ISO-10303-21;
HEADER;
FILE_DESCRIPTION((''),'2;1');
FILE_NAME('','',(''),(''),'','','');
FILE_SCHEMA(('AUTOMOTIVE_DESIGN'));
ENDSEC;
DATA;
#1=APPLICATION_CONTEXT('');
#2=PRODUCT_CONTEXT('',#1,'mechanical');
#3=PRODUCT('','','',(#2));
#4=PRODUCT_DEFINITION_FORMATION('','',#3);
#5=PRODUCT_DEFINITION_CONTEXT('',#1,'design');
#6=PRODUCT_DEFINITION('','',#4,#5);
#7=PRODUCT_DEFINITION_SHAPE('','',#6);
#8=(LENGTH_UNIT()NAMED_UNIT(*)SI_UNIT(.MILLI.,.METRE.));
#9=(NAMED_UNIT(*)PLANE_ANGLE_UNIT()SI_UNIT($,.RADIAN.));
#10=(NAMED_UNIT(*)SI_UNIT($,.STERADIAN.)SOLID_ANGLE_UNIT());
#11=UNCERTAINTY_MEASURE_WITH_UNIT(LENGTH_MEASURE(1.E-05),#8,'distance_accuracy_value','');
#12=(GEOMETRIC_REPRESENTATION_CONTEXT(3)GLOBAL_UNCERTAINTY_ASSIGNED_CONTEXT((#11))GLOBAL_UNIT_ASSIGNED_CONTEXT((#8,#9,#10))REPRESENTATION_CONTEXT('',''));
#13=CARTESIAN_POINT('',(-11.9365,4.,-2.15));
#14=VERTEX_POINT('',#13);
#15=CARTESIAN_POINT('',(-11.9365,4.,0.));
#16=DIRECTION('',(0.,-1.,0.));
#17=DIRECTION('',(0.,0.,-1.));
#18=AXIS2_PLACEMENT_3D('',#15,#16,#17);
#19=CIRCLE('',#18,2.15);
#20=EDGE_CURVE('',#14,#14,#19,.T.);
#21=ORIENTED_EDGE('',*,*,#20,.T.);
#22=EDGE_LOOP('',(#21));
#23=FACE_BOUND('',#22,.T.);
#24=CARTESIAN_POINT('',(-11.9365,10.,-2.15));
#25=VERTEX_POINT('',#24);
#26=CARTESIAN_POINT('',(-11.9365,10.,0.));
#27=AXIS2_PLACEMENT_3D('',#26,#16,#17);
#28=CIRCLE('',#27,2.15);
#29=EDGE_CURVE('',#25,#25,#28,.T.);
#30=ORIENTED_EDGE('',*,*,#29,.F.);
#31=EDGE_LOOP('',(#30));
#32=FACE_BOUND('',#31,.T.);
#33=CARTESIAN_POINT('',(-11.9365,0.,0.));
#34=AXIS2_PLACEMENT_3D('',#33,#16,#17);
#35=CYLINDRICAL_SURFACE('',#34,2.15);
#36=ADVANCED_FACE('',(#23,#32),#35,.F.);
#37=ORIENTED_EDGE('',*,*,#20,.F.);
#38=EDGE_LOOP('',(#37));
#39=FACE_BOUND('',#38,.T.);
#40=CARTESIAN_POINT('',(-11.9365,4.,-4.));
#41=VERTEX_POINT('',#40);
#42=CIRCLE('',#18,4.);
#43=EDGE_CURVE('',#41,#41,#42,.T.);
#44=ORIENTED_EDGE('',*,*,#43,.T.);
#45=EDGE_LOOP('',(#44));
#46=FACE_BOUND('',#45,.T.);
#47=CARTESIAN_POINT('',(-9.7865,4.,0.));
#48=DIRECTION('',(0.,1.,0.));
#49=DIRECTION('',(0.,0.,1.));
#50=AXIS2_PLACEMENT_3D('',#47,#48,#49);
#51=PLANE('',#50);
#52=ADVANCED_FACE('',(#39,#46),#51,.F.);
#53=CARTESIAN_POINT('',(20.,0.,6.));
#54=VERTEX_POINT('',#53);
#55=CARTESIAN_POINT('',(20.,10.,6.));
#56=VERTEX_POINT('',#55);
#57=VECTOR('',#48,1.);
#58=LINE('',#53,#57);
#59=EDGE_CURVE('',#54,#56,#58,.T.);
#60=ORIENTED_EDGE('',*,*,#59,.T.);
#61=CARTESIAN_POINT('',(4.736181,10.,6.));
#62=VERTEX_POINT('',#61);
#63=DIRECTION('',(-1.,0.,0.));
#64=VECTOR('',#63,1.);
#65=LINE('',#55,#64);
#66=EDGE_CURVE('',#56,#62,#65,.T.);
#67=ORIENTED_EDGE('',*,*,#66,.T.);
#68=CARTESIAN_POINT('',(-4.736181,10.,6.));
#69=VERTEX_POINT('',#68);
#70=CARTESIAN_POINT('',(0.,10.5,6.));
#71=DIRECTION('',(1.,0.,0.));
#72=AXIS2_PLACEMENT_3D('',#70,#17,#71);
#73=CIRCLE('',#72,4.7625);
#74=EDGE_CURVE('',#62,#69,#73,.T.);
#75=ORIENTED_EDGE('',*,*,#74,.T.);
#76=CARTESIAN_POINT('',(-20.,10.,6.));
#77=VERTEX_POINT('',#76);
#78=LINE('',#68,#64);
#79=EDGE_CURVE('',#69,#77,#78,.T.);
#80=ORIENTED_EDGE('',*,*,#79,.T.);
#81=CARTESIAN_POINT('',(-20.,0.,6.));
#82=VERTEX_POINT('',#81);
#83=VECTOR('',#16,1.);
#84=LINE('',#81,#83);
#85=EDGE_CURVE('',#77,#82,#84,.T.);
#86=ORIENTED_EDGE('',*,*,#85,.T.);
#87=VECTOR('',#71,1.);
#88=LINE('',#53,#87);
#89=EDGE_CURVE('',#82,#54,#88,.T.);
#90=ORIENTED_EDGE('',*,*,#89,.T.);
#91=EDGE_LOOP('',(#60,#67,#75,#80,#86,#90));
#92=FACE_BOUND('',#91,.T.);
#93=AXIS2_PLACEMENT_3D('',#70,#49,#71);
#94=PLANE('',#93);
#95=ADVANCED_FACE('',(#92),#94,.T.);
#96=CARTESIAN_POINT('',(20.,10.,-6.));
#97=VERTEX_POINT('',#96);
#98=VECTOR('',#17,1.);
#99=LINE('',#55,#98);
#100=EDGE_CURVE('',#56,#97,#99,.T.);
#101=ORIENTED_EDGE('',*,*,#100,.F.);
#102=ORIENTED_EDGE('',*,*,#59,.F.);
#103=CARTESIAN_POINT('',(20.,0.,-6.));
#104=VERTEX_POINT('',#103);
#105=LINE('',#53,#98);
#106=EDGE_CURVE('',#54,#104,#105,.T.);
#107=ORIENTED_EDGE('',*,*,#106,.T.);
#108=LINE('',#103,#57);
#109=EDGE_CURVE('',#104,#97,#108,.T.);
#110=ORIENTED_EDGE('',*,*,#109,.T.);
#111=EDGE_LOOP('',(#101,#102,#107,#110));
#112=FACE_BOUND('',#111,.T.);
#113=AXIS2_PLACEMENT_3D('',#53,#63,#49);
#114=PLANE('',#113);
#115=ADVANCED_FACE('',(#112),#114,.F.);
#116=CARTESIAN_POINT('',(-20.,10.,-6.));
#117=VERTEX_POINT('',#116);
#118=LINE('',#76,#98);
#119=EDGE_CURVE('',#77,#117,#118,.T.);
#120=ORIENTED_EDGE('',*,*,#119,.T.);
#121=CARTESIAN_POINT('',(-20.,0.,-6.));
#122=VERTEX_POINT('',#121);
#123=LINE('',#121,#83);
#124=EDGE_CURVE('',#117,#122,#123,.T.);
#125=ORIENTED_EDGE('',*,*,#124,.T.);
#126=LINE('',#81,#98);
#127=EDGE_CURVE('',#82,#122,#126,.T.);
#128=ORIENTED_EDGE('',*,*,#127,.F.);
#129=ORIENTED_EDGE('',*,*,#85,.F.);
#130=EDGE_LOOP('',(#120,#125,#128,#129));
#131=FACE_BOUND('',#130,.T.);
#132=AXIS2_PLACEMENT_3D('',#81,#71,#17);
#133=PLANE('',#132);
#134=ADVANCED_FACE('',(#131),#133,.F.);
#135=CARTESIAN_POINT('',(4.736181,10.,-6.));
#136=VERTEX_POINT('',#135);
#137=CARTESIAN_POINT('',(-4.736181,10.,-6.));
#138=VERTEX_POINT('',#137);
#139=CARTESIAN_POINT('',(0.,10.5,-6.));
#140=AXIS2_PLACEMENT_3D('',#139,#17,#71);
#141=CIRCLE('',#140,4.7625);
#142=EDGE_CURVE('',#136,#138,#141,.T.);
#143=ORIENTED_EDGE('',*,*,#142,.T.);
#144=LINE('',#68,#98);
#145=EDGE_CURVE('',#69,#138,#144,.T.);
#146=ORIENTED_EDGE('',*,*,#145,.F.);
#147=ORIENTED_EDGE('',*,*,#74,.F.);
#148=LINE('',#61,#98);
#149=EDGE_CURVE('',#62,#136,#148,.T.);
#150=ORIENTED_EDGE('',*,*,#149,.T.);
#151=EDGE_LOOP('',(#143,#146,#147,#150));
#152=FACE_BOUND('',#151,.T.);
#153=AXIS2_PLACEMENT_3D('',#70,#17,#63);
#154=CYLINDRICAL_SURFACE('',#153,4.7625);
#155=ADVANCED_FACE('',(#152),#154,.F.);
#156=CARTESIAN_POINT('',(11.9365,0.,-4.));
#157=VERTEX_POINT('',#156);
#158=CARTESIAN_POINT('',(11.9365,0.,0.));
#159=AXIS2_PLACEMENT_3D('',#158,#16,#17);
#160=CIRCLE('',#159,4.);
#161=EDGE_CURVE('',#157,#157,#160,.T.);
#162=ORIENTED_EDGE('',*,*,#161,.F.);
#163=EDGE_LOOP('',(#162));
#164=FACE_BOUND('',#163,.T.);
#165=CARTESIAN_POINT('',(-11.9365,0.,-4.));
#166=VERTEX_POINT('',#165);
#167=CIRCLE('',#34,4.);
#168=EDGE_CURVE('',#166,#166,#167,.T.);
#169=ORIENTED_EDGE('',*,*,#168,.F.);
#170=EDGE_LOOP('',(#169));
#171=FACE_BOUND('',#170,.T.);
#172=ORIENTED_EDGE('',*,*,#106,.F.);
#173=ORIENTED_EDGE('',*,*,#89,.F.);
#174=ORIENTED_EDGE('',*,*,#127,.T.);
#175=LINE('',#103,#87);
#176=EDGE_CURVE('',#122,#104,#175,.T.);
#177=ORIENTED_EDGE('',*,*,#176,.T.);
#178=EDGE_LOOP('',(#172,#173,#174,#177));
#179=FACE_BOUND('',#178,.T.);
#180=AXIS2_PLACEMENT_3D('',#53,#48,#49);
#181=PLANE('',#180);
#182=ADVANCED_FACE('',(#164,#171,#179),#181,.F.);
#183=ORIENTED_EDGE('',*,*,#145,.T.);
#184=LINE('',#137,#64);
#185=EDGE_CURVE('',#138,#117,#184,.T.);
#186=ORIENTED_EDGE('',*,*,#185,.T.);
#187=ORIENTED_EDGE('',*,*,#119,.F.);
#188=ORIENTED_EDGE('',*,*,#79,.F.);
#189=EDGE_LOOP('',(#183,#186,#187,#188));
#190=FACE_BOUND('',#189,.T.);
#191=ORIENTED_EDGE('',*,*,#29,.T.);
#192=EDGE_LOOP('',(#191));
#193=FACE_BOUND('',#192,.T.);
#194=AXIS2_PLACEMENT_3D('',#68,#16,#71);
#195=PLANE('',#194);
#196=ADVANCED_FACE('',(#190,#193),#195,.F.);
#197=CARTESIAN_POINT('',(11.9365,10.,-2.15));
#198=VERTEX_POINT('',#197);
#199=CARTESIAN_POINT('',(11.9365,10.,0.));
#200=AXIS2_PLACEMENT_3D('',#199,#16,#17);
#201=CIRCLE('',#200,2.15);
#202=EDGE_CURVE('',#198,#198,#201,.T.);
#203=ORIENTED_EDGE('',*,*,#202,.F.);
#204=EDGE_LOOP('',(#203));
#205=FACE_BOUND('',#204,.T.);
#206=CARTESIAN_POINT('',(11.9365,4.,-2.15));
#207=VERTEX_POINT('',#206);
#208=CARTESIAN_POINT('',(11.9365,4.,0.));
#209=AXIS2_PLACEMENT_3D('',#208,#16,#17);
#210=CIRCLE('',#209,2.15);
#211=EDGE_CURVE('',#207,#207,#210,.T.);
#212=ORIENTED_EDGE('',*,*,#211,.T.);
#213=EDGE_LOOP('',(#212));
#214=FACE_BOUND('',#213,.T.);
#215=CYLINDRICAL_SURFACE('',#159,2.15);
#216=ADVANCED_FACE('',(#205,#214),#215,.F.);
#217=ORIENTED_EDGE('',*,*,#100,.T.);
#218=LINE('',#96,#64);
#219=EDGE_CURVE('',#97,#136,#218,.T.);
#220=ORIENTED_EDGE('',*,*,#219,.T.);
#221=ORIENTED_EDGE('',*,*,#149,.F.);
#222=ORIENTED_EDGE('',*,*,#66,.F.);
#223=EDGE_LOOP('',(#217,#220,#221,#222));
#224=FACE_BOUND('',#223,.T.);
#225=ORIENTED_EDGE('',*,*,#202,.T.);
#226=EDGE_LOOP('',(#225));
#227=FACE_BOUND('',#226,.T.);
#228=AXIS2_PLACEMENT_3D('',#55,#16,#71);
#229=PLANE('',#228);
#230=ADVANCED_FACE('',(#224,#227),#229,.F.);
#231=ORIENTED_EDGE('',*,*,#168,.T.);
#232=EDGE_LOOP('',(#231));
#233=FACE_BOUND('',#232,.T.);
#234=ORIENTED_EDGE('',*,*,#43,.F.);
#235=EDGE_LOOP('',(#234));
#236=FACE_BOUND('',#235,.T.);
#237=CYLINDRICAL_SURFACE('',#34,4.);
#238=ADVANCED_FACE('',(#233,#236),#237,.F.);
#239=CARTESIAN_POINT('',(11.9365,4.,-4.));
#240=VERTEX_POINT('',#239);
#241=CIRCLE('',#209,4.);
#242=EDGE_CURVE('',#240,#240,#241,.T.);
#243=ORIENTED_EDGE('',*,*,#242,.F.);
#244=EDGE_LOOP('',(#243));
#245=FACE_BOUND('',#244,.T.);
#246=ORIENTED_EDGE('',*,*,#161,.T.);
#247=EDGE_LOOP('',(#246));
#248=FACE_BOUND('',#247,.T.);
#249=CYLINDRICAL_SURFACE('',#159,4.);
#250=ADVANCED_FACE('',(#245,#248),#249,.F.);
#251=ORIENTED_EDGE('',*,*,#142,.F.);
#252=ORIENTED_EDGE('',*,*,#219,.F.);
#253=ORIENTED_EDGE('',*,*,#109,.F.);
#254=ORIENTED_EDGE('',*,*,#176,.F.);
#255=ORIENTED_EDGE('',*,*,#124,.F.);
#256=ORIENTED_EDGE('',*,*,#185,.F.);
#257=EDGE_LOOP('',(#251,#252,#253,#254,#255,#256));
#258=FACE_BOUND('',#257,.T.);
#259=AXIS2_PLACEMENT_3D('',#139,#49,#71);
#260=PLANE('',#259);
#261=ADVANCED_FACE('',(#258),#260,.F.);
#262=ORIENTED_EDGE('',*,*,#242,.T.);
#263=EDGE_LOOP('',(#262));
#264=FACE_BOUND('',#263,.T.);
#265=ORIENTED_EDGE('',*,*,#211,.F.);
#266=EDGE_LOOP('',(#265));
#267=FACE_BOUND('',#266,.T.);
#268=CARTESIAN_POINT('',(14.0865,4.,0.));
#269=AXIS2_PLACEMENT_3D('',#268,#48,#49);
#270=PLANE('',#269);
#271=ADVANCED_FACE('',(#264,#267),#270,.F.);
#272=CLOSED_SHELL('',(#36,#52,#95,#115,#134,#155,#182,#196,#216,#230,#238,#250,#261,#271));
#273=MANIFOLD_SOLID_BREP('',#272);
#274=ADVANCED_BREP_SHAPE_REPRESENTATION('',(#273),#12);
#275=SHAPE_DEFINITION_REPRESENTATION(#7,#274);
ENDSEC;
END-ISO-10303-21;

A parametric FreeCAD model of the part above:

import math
import FreeCAD as App
import Part
import Sketcher
from FreeCAD import Vector

doc = App.newDocument("Part")
body = doc.addObject("PartDesign::Body", "Body")

# Sketch on XY plane
sketch1 = doc.addObject("Sketcher::SketchObject", "Sketch")
body.addObject(sketch1)
sketch1.AttachmentSupport = (doc.XY_Plane, [""])
sketch1.MapMode = "FlatFace"
sketch1.addGeometry([
    Part.LineSegment(Vector(-20, 0, 0), Vector(20, 0, 0)),  # 0
    Part.LineSegment(Vector(20, 0, 0), Vector(20, 10, 0)),  # 1
    Part.LineSegment(Vector(20, 10, 0), Vector(4.7, 10, 0)),  # 2
    Part.ArcOfCircle(Part.Circle(Vector(0, 10.5, 0), Vector(0, 0, 1), 4.8), math.radians(-174), math.radians(-6)),  # 3
    Part.LineSegment(Vector(-4.7, 10, 0), Vector(-20, 10, 0)),  # 4
    Part.LineSegment(Vector(-20, 10, 0), Vector(-20, 0, 0)),  # 5
], False)
sketch1.addConstraint([
    Sketcher.Constraint("Coincident", 0, 2, 1, 1),
    Sketcher.Constraint("Coincident", 1, 2, 2, 1),
    Sketcher.Constraint("Coincident", 2, 2, 3, 2),
    Sketcher.Constraint("Coincident", 3, 1, 4, 1),
    Sketcher.Constraint("Coincident", 4, 2, 5, 1),
    Sketcher.Constraint("Coincident", 5, 2, 0, 1),
    Sketcher.Constraint("Horizontal", 0),
    Sketcher.Constraint("Vertical", 1),
    Sketcher.Constraint("Horizontal", 2),
    Sketcher.Constraint("Horizontal", 4),
    Sketcher.Constraint("Vertical", 5),
    Sketcher.Constraint("Symmetric", 0, 2, 5, 2, -1, 1),
    Sketcher.Constraint("Symmetric", 2, 2, 3, 1, -2),
    Sketcher.Constraint("DistanceX", 0, 1, 0, 2, 40.0),
    Sketcher.Constraint("DistanceY", 1, 1, 1, 2, 10.0),
    Sketcher.Constraint("DistanceY", -1, 1, 3, 3, 10.5),
    Sketcher.Constraint("Radius", 3, 4.7625),
])
pad1 = doc.addObject("PartDesign::Pad", "Pad")
body.addObject(pad1)
pad1.Profile = sketch1
pad1.Length = 12
pad1.Midplane = True

# Sketch on XZ plane
sketch2 = doc.addObject("Sketcher::SketchObject", "Sketch001")
body.addObject(sketch2)
sketch2.AttachmentSupport = (doc.XZ_Plane, [""])
sketch2.MapMode = "FlatFace"
sketch2.addGeometry([
    Part.Circle(Vector(-11.9, 0, 0), Vector(0, 0, 1), 2.1),
    Part.Circle(Vector(11.9, 0, 0), Vector(0, 0, 1), 2.1),
], False)
sketch2.addConstraint([
    Sketcher.Constraint("Equal", 0, 1),
    Sketcher.Constraint("Symmetric", 0, 3, 1, 3, -1, 1),
    Sketcher.Constraint("PointOnObject", 0, 3, -1),
    Sketcher.Constraint("Diameter", 0, 4.3),
    Sketcher.Constraint("DistanceX", 0, 3, 1, 3, 23.873),
])
doc.recompute()
hole = doc.addObject("PartDesign::Hole", "Hole")
body.addObject(hole)
hole.Profile = sketch2
hole.ThreadType = "None"
hole.Diameter = 4.3
hole.DepthType = "ThroughAll"
hole.HoleCutType = "Counterbore"
hole.HoleCutDiameter = 8
hole.HoleCutDepth = 4

doc.recompute()
